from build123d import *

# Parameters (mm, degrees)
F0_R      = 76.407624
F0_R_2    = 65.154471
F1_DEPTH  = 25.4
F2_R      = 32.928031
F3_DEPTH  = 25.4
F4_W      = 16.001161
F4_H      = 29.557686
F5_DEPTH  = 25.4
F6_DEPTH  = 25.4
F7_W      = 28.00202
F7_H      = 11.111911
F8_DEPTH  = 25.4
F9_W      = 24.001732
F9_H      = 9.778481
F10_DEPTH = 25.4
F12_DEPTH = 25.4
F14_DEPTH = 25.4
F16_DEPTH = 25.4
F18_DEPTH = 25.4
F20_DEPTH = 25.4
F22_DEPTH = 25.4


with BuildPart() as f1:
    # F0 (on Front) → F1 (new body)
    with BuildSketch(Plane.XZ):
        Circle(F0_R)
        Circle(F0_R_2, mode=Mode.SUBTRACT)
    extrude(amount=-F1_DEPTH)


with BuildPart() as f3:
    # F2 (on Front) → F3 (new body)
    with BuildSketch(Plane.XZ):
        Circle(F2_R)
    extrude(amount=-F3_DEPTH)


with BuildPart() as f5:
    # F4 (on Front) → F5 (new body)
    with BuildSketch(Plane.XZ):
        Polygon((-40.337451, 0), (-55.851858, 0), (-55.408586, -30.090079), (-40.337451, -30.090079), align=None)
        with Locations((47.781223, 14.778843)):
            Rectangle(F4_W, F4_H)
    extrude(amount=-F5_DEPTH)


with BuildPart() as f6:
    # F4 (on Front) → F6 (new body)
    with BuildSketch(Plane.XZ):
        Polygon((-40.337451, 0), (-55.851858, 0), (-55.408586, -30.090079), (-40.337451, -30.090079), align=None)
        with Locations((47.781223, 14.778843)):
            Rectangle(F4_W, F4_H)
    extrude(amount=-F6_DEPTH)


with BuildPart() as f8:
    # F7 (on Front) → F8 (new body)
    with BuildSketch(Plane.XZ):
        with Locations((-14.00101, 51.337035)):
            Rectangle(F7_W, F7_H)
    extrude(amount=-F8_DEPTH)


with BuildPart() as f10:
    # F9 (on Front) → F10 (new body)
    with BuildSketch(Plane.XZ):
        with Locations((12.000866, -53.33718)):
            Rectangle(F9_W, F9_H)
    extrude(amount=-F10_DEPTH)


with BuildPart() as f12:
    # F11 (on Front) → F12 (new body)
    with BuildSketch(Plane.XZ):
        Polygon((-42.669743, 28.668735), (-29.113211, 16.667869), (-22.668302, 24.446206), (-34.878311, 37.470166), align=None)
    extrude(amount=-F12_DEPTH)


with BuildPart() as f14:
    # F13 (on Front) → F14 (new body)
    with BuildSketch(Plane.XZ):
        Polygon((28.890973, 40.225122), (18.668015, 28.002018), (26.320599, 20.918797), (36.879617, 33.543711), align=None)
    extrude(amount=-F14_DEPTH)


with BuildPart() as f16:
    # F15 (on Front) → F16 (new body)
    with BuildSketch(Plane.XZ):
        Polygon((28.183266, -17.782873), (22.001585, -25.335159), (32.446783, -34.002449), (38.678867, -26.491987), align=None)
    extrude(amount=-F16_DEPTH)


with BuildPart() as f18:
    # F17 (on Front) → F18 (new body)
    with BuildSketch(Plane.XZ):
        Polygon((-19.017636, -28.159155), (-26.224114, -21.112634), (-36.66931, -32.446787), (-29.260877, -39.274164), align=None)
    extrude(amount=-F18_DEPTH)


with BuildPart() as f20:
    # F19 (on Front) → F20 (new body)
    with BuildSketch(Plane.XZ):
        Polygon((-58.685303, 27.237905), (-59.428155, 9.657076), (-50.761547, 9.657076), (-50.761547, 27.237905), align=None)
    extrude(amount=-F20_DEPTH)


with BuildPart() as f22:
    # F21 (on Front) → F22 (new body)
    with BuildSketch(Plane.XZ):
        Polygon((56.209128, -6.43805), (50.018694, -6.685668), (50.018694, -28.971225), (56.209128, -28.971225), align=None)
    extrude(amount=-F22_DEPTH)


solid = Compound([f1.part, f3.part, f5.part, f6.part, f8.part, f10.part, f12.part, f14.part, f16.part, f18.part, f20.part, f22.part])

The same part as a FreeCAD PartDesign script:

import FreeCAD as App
import Part
import Sketcher
from FreeCAD import Vector
Q = App.Units.Quantity


def add_polygon(sketch, points):
    """Adds a closed chain of lines whose ends are joined by coincident constraints."""
    first, n = sketch.GeometryCount, len(points)
    for a, b in zip(points, points[1:] + points[:1]):
        sketch.addGeometry(Part.LineSegment(App.Vector(*a, 0), App.Vector(*b, 0)), False)
    for i in range(n):
        sketch.addConstraint(Sketcher.Constraint("Coincident", first + i, 2, first + (i + 1) % n, 1))

doc = App.newDocument("Part")
body = doc.addObject("PartDesign::Body", "Body")

# Sketch on XZ plane
sketch1 = body.newObject("Sketcher::SketchObject", "Sketch")
sketch1.AttachmentSupport = (doc.getObject("XZ_Plane"), [""])
sketch1.MapMode = "FlatFace"
sketch1.addGeometry([
    Part.Circle(Vector(0, 0, 0), Vector(0, 0, 1), 76),
    Part.Circle(Vector(0, 0, 0), Vector(0, 0, 1), 65),
], False)
sketch1.addConstraint([
    Sketcher.Constraint("Coincident", 0, 3, -1, 1),
    Sketcher.Constraint("Coincident", 1, 3, -1, 1),
    Sketcher.Constraint("Diameter", 0, Q("152.815248 mm")),
    Sketcher.Constraint("Diameter", 1, Q("130.308942 mm")),
])
pad1 = body.newObject("PartDesign::Pad", "Pad")
pad1.Profile = sketch1
pad1.Length = Q("1 in")
pad1.Reversed = True
body2 = doc.addObject("PartDesign::Body", "Body001")

# Sketch on XZ plane
sketch2 = body2.newObject("Sketcher::SketchObject", "Sketch001")
sketch2.AttachmentSupport = (doc.getObject("XZ_Plane001"), [""])
sketch2.MapMode = "FlatFace"
sketch2.addGeometry(Part.Circle(Vector(0, 0, 0), Vector(0, 0, 1), 33), False)
sketch2.addConstraint([
    Sketcher.Constraint("Coincident", 0, 3, -1, 1),
    Sketcher.Constraint("Diameter", 0, Q("65.856062 mm")),
])
pad2 = body2.newObject("PartDesign::Pad", "Pad001")
pad2.Profile = sketch2
pad2.Length = Q("1 in")
pad2.Reversed = True
body3 = doc.addObject("PartDesign::Body", "Body002")
body3.AllowCompound = True

# Sketch on XZ plane
sketch3 = body3.newObject("Sketcher::SketchObject", "Sketch002")
sketch3.AttachmentSupport = (doc.getObject("XZ_Plane002"), [""])
sketch3.MapMode = "FlatFace"
add_polygon(sketch3, [(-40, 0), (-56, 0), (-55, -30), (-40, -30)])  # lines 0-3
add_polygon(sketch3, [(40, 30), (40, 0), (56, 0), (56, 30)])  # lines 4-7
sketch3.addConstraint([
    Sketcher.Constraint("Horizontal", 0),
    Sketcher.Constraint("Horizontal", 2),
    Sketcher.Constraint("Vertical", 3),
    Sketcher.Constraint("Vertical", 4),
    Sketcher.Constraint("Horizontal", 5),
    Sketcher.Constraint("Vertical", 6),
    Sketcher.Constraint("Horizontal", 7),
    Sketcher.Constraint("PointOnObject", 0, 2, -1),
    Sketcher.Constraint("PointOnObject", 4, 2, -1),
    Sketcher.Constraint("DistanceX", 5, 1, 5, 2, Q("16.001161 mm")),
    Sketcher.Constraint("DistanceY", 3, 1, 3, 2, Q("30.090079 mm")),
    Sketcher.Constraint("DistanceX", 0, 2, 4, 2, Q("95.6325 mm")),
    Sketcher.Constraint("DistanceX", 0, 2, 0, 1, Q("15.514407 mm")),
    Sketcher.Constraint("DistanceX", 2, 1, 2, 2, Q("15.071135 mm")),
    Sketcher.Constraint("DistanceY", 4, 2, 4, 1, Q("29.557686 mm")),
    Sketcher.Constraint("DistanceX", 2, 2, -1, 1, Q("40.337451 mm")),
])
pad3 = body3.newObject("PartDesign::Pad", "Pad002")
pad3.Profile = sketch3
pad3.Length = Q("1 in")
pad3.Reversed = True
body4 = doc.addObject("PartDesign::Body", "Body003")
body4.AllowCompound = True

# Sketch on XZ plane
sketch4 = body4.newObject("Sketcher::SketchObject", "Sketch003")
sketch4.AttachmentSupport = (doc.getObject("XZ_Plane003"), [""])
sketch4.MapMode = "FlatFace"
add_polygon(sketch4, [(-40, 0), (-56, 0), (-55, -30), (-40, -30)])  # lines 0-3
add_polygon(sketch4, [(40, 30), (40, 0), (56, 0), (56, 30)])  # lines 4-7
sketch4.addConstraint([
    Sketcher.Constraint("Horizontal", 0),
    Sketcher.Constraint("Horizontal", 2),
    Sketcher.Constraint("Vertical", 3),
    Sketcher.Constraint("Vertical", 4),
    Sketcher.Constraint("Horizontal", 5),
    Sketcher.Constraint("Vertical", 6),
    Sketcher.Constraint("Horizontal", 7),
    Sketcher.Constraint("PointOnObject", 0, 2, -1),
    Sketcher.Constraint("PointOnObject", 4, 2, -1),
    Sketcher.Constraint("DistanceX", 5, 1, 5, 2, Q("16.001161 mm")),
    Sketcher.Constraint("DistanceY", 3, 1, 3, 2, Q("30.090079 mm")),
    Sketcher.Constraint("DistanceX", 0, 2, 4, 2, Q("95.6325 mm")),
    Sketcher.Constraint("DistanceX", 0, 2, 0, 1, Q("15.514407 mm")),
    Sketcher.Constraint("DistanceX", 2, 1, 2, 2, Q("15.071135 mm")),
    Sketcher.Constraint("DistanceY", 4, 2, 4, 1, Q("29.557686 mm")),
    Sketcher.Constraint("DistanceX", 2, 2, -1, 1, Q("40.337451 mm")),
])
pad4 = body4.newObject("PartDesign::Pad", "Pad003")
pad4.Profile = sketch4
pad4.Length = Q("1 in")
pad4.Reversed = True
body5 = doc.addObject("PartDesign::Body", "Body004")

# Sketch on XZ plane
sketch5 = body5.newObject("Sketcher::SketchObject", "Sketch004")
sketch5.AttachmentSupport = (doc.getObject("XZ_Plane004"), [""])
sketch5.MapMode = "FlatFace"
add_polygon(sketch5, [(-28, 57), (-28, 46), (0, 46), (0, 57)])  # lines 0-3
sketch5.addConstraint([
    Sketcher.Constraint("Vertical", 0),
    Sketcher.Constraint("Horizontal", 1),
    Sketcher.Constraint("Vertical", 2),
    Sketcher.Constraint("Horizontal", 3),
    Sketcher.Constraint("PointOnObject", 1, 2, -2),
    Sketcher.Constraint("DistanceX", 1, 1, 1, 2, Q("28.00202 mm")),
    Sketcher.Constraint("DistanceY", 0, 2, 0, 1, Q("11.111911 mm")),
    Sketcher.Constraint("DistanceY", -1, 1, 0, 2, Q("45.781079 mm")),
])
pad5 = body5.newObject("PartDesign::Pad", "Pad004")
pad5.Profile = sketch5
pad5.Length = Q("1 in")
pad5.Reversed = True
body6 = doc.addObject("PartDesign::Body", "Body005")

# Sketch on XZ plane
sketch6 = body6.newObject("Sketcher::SketchObject", "Sketch005")
sketch6.AttachmentSupport = (doc.getObject("XZ_Plane005"), [""])
sketch6.MapMode = "FlatFace"
add_polygon(sketch6, [(0, -48), (0, -58), (24, -58), (24, -48)])  # lines 0-3
sketch6.addConstraint([
    Sketcher.Constraint("Vertical", 0),
    Sketcher.Constraint("Horizontal", 1),
    Sketcher.Constraint("Vertical", 2),
    Sketcher.Constraint("Horizontal", 3),
    Sketcher.Constraint("PointOnObject", 0, 2, -2),
    Sketcher.Constraint("DistanceY", 0, 2, 0, 1, Q("9.778481 mm")),
    Sketcher.Constraint("DistanceX", 1, 1, 1, 2, Q("24.001732 mm")),
    Sketcher.Constraint("DistanceY", 0, 2, -1, 1, Q("58.226421 mm")),
])
pad6 = body6.newObject("PartDesign::Pad", "Pad005")
pad6.Profile = sketch6
pad6.Length = Q("1 in")
pad6.Reversed = True
body7 = doc.addObject("PartDesign::Body", "Body006")

# Sketch on XZ plane
sketch7 = body7.newObject("Sketcher::SketchObject", "Sketch006")
sketch7.AttachmentSupport = (doc.getObject("XZ_Plane006"), [""])
sketch7.MapMode = "FlatFace"
add_polygon(sketch7, [(-43, 29), (-29, 17), (-23, 24), (-35, 37)])  # lines 0-3
sketch7.addConstraint([
    Sketcher.Constraint("Perpendicular", 0, 3),
    Sketcher.Constraint("DistanceX", 2, 2, 0, 2, Q("5.7651 mm")),
    Sketcher.Constraint("Distance", 2, Q("17.852391 mm")),
    Sketcher.Constraint("Distance", 3, Q("11.754642 mm")),
    Sketcher.Constraint("DistanceX", 0, 2, -1, 1, Q("29.113211 mm")),
    Sketcher.Constraint("DistanceY", -1, 1, 0, 2, Q("16.667869 mm")),
    Sketcher.Constraint("DistanceX", 0, 2, 1, 2, Q("6.444909 mm")),
    Sketcher.Constraint("DistanceY", 3, 2, 2, 2, Q("8.801431 mm")),
])
pad7 = body7.newObject("PartDesign::Pad", "Pad006")
pad7.Profile = sketch7
pad7.Length = Q("1 in")
pad7.Reversed = True
body8 = doc.addObject("PartDesign::Body", "Body007")

# Sketch on XZ plane
sketch8 = body8.newObject("Sketcher::SketchObject", "Sketch007")
sketch8.AttachmentSupport = (doc.getObject("XZ_Plane007"), [""])
sketch8.MapMode = "FlatFace"
add_polygon(sketch8, [(29, 40), (19, 28), (26, 21), (37, 34)])  # lines 0-3
sketch8.addConstraint([
    Sketcher.Constraint("Parallel", 0, 2),
    Sketcher.Constraint("Perpendicular", 2, 3),
    Sketcher.Constraint("Distance", 3, Q("10.414398 mm")),
    Sketcher.Constraint("DistanceX", -1, 1, 1, 2, Q("26.320599 mm")),
    Sketcher.Constraint("DistanceY", -1, 1, 2, 2, Q("33.543711 mm")),
    Sketcher.Constraint("DistanceY", 1, 2, 0, 2, Q("7.083221 mm")),
    Sketcher.Constraint("DistanceX", 1, 2, 2, 2, Q("10.559018 mm")),
    Sketcher.Constraint("DistanceY", 2, 2, 3, 2, Q("6.681411 mm")),
])
pad8 = body8.newObject("PartDesign::Pad", "Pad007")
pad8.Profile = sketch8
pad8.Length = Q("1 in")
pad8.Reversed = True
body9 = doc.addObject("PartDesign::Body", "Body008")

# Sketch on XZ plane
sketch9 = body9.newObject("Sketcher::SketchObject", "Sketch008")
sketch9.AttachmentSupport = (doc.getObject("XZ_Plane008"), [""])
sketch9.MapMode = "FlatFace"
add_polygon(sketch9, [(28, -18), (22, -25), (32, -34), (39, -26)])  # lines 0-3
sketch9.addConstraint([
    Sketcher.Constraint("Perpendicular", 1, 2),
    Sketcher.Constraint("Perpendicular", 2, 3),
    Sketcher.Constraint("Distance", 2, Q("9.759401 mm")),
    Sketcher.Constraint("DistanceX", 0, 2, 1, 2, Q("10.445198 mm")),
    Sketcher.Constraint("DistanceX", 3, 2, 2, 2, Q("10.495601 mm")),
    Sketcher.Constraint("DistanceY", 0, 2, -1, 1, Q("25.335159 mm")),
    Sketcher.Constraint("DistanceY", 1, 2, -1, 1, Q("34.002449 mm")),
    Sketcher.Constraint("DistanceX", -1, 1, 0, 2, Q("22.001585 mm")),
])
pad9 = body9.newObject("PartDesign::Pad", "Pad008")
pad9.Profile = sketch9
pad9.Length = Q("1 in")
pad9.Reversed = True
body10 = doc.addObject("PartDesign::Body", "Body009")

# Sketch on XZ plane
sketch10 = body10.newObject("Sketcher::SketchObject", "Sketch009")
sketch10.AttachmentSupport = (doc.getObject("XZ_Plane009"), [""])
sketch10.MapMode = "FlatFace"
add_polygon(sketch10, [(-19, -28), (-26, -21), (-37, -32), (-29, -39)])  # lines 0-3
sketch10.addConstraint([
    Sketcher.Constraint("Perpendicular", 1, 2),
    Sketcher.Constraint("Perpendicular", 2, 3),
    Sketcher.Constraint("Distance", 1, Q("15.413148 mm")),
    Sketcher.Constraint("Distance", 2, Q("10.074619 mm")),
    Sketcher.Constraint("Distance", 3, Q("15.115138 mm")),
    Sketcher.Constraint("DistanceX", 1, 2, -1, 1, Q("36.66931 mm")),
    Sketcher.Constraint("DistanceY", 2, 2, 0, 2, Q("18.16153 mm")),
    Sketcher.Constraint("DistanceY", 0, 2, -1, 1, Q("21.112634 mm")),
])
pad10 = body10.newObject("PartDesign::Pad", "Pad009")
pad10.Profile = sketch10
pad10.Length = Q("1 in")
pad10.Reversed = True
body11 = doc.addObject("PartDesign::Body", "Body010")

# Sketch on XZ plane
sketch11 = body11.newObject("Sketcher::SketchObject", "Sketch010")
sketch11.AttachmentSupport = (doc.getObject("XZ_Plane010"), [""])
sketch11.MapMode = "FlatFace"
add_polygon(sketch11, [(-59, 27), (-59, 10), (-51, 10), (-51, 27)])  # lines 0-3
sketch11.addConstraint([
    Sketcher.Constraint("Horizontal", 1),
    Sketcher.Constraint("Vertical", 2),
    Sketcher.Constraint("Horizontal", 3),
    Sketcher.Constraint("DistanceY", -1, 1, 0, 2, Q("0.3801998 in")),
    Sketcher.Constraint("DistanceY", 2, 1, 2, 2, Q("17.580829 mm")),
    Sketcher.Constraint("DistanceX", 1, 1, 1, 2, Q("8.666608 mm")),
    Sketcher.Constraint("DistanceX", 3, 2, 3, 1, Q("7.923756 mm")),
    Sketcher.Constraint("DistanceX", 0, 2, -1, 1, Q("59.428155 mm")),
])
pad11 = body11.newObject("PartDesign::Pad", "Pad010")
pad11.Profile = sketch11
pad11.Length = Q("1 in")
pad11.Reversed = True
body12 = doc.addObject("PartDesign::Body", "Body011")

# Sketch on XZ plane
sketch12 = body12.newObject("Sketcher::SketchObject", "Sketch011")
sketch12.AttachmentSupport = (doc.getObject("XZ_Plane011"), [""])
sketch12.MapMode = "FlatFace"
add_polygon(sketch12, [(56, -6), (50, -7), (50, -29), (56, -29)])  # lines 0-3
sketch12.addConstraint([
    Sketcher.Constraint("Vertical", 1),
    Sketcher.Constraint("Horizontal", 2),
    Sketcher.Constraint("Vertical", 3),
    Sketcher.Constraint("DistanceX", 2, 1, 2, 2, Q("6.190434 mm")),
    Sketcher.Constraint("DistanceY", 1, 2, 1, 1, Q("22.285557 mm")),
    Sketcher.Constraint("DistanceY", 3, 1, 3, 2, Q("22.533175 mm")),
    Sketcher.Constraint("DistanceY", 3, 2, -1, 1, Q("6.43805 mm")),
    Sketcher.Constraint("DistanceX", -1, 1, 0, 2, Q("50.018694 mm")),
])
pad12 = body12.newObject("PartDesign::Pad", "Pad011")
pad12.Profile = sketch12
pad12.Length = Q("1 in")
pad12.Reversed = True

doc.recompute()
